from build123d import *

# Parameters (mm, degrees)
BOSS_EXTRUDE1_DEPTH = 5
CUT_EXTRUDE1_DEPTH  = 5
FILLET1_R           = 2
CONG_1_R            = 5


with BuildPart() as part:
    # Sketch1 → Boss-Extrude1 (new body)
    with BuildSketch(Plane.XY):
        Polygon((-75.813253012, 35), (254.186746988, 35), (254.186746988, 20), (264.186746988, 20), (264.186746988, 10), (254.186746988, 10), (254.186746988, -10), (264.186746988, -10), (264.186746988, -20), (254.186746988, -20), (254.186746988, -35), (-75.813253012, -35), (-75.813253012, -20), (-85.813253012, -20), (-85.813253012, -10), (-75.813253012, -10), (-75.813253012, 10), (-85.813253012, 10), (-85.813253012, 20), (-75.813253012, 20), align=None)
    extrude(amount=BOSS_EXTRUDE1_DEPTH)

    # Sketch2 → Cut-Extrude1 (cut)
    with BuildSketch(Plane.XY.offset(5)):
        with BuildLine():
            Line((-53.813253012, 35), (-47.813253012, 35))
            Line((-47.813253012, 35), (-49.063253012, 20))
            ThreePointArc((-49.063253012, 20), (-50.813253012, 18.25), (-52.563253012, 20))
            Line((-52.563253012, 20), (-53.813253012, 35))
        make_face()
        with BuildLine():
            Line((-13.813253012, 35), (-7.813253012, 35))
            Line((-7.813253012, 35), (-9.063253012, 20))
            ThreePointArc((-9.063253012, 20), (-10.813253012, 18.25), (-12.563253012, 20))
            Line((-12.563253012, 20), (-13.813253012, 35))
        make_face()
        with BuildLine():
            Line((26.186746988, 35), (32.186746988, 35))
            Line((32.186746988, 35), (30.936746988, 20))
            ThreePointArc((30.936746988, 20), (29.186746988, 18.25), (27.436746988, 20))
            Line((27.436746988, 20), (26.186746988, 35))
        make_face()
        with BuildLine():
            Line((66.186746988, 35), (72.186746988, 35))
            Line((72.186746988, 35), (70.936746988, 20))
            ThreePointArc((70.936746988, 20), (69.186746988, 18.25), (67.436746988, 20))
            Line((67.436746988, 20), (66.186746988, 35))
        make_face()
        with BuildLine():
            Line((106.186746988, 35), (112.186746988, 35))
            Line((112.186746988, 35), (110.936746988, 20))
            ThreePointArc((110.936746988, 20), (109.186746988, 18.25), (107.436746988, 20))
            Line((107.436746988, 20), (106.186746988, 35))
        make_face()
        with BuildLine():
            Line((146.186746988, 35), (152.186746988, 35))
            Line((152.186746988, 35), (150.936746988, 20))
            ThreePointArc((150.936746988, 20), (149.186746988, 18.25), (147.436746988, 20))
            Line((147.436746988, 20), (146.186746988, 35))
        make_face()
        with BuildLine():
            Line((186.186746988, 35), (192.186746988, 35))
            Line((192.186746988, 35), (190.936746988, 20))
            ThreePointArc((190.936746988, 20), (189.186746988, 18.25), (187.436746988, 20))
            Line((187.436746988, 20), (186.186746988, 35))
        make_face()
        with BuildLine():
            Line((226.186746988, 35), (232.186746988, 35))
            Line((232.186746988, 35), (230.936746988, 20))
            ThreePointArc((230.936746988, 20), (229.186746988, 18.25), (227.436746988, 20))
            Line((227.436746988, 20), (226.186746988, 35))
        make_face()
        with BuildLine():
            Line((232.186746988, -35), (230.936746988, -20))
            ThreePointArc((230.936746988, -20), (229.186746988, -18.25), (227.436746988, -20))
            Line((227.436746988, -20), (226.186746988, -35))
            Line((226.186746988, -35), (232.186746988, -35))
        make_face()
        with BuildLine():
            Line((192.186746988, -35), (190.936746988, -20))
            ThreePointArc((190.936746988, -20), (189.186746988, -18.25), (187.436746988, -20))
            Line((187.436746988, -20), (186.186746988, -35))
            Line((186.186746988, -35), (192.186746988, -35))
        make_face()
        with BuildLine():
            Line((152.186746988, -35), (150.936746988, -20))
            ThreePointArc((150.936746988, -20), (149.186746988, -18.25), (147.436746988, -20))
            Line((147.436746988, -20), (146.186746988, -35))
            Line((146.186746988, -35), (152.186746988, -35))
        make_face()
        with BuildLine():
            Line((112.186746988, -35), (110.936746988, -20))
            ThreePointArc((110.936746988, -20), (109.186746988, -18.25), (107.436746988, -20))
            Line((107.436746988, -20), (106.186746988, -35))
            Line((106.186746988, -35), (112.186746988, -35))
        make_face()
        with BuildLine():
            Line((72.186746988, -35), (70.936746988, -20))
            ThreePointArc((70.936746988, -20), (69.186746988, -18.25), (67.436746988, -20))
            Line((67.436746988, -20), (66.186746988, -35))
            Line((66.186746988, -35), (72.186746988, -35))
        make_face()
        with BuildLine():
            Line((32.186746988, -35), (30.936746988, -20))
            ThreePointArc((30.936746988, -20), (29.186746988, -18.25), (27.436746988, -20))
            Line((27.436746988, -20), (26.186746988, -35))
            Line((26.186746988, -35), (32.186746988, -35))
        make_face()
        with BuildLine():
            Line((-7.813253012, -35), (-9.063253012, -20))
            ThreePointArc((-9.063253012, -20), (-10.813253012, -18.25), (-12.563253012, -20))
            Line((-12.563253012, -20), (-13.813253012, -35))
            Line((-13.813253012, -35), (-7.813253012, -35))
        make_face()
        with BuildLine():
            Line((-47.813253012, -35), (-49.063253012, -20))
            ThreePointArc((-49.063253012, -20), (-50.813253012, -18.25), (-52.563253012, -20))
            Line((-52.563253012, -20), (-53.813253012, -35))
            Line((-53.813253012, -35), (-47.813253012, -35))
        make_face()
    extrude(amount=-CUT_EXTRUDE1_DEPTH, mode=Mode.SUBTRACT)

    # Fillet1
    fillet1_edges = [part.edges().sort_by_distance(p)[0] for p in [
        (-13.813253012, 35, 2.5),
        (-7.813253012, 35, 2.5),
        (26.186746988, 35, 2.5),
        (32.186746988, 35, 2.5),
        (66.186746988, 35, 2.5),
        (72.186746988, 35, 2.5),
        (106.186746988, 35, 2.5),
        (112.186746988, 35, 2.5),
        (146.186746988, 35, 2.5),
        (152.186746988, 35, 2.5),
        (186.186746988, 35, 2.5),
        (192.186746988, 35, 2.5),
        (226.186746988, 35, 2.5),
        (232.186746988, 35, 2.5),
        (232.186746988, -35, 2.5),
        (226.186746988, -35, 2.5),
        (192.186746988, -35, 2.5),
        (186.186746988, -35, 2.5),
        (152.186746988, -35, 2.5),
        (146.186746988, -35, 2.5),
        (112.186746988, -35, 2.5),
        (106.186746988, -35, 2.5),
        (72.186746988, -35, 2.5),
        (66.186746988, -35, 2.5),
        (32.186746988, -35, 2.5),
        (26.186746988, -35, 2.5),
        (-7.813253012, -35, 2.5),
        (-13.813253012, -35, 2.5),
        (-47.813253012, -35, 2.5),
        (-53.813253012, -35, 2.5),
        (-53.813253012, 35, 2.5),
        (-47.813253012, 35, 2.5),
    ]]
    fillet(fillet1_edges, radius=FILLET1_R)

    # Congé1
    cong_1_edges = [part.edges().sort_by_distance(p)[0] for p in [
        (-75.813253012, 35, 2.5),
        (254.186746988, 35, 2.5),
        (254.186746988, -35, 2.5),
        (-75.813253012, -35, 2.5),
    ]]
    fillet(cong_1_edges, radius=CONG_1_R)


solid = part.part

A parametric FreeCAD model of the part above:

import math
import FreeCAD as App
import Part
import Sketcher

V = App.Vector


def edges_at(feature, points):
    """Names of the edges that pass closest to the given points."""
    edges = feature.Shape.Edges
    near = lambda p: min(range(len(edges)), key=lambda i: edges[i].distToShape(Part.Vertex(*p))[0])
    return sorted({f"Edge{near(p) + 1}" for p in points})


def add_polygon(sketch, points):
    """Adds a closed chain of lines whose ends are joined by coincident constraints."""
    first, n = sketch.GeometryCount, len(points)
    for a, b in zip(points, points[1:] + points[:1]):
        sketch.addGeometry(Part.LineSegment(App.Vector(*a, 0), App.Vector(*b, 0)), False)
    for i in range(n):
        sketch.addConstraint(Sketcher.Constraint("Coincident", first + i, 2, first + (i + 1) % n, 1))

doc = App.newDocument("Part")
body = doc.addObject("PartDesign::Body", "Body")

# Sketch on XY plane
sketch1 = body.newObject("Sketcher::SketchObject", "Sketch")
sketch1.AttachmentSupport = (doc.getObject("XY_Plane"), [""])
sketch1.MapMode = "FlatFace"
add_polygon(sketch1, [(254.186747, 35), (-75.813253, 35), (-75.813253, 20), (-85.813253, 20), (-85.813253, 10), (-75.813253, 10), (-75.813253, -10), (-85.813253, -10), (-85.813253, -20), (-75.813253, -20), (-75.813253, -35), (254.186747, -35), (254.186747, -20), (264.186747, -20), (264.186747, -10), (254.186747, -10), (254.186747, 10), (264.186747, 10), (264.186747, 20), (254.186747, 20)])  # lines 0-19
sketch1.addConstraint(Sketcher.Constraint("Horizontal", 0))
sketch1.addConstraint(Sketcher.Constraint("Vertical", 1))
sketch1.addConstraint(Sketcher.Constraint("Horizontal", 2))
sketch1.addConstraint(Sketcher.Constraint("Vertical", 3))
sketch1.addConstraint(Sketcher.Constraint("Horizontal", 4))
sketch1.addConstraint(Sketcher.Constraint("Vertical", 5))
sketch1.addConstraint(Sketcher.Constraint("Horizontal", 6))
sketch1.addConstraint(Sketcher.Constraint("Vertical", 7))
sketch1.addConstraint(Sketcher.Constraint("Horizontal", 8))
sketch1.addConstraint(Sketcher.Constraint("Vertical", 9))
sketch1.addConstraint(Sketcher.Constraint("Horizontal", 10))
sketch1.addConstraint(Sketcher.Constraint("Vertical", 11))
sketch1.addConstraint(Sketcher.Constraint("Horizontal", 12))
sketch1.addConstraint(Sketcher.Constraint("Vertical", 13))
sketch1.addConstraint(Sketcher.Constraint("Horizontal", 14))
sketch1.addConstraint(Sketcher.Constraint("Vertical", 15))
sketch1.addConstraint(Sketcher.Constraint("Horizontal", 16))
sketch1.addConstraint(Sketcher.Constraint("Vertical", 17))
sketch1.addConstraint(Sketcher.Constraint("Horizontal", 18))
sketch1.addConstraint(Sketcher.Constraint("Vertical", 19))
sketch1.addConstraint(Sketcher.Constraint("Symmetric", 3, 2, 6, 2, -1))
sketch1.addConstraint(Sketcher.Constraint("Symmetric", 1, 2, 8, 2, -1))
sketch1.addConstraint(Sketcher.Constraint("Symmetric", 13, 2, 16, 2, -1))
sketch1.addConstraint(Sketcher.Constraint("Symmetric", 11, 2, 18, 2, -1))
sketch1.addConstraint(Sketcher.Constraint("Horizontal", 8, 2, 11, 2))
sketch1.addConstraint(Sketcher.Constraint("Horizontal", 6, 2, 13, 2))
sketch1.addConstraint(Sketcher.Constraint("Vertical", 1, 2, 4, 2))
sketch1.addConstraint(Sketcher.Constraint("Vertical", 11, 2, 14, 2))
sketch1.addConstraint(Sketcher.Constraint("Equal", 8, 12))
sketch1.addConstraint(Sketcher.Constraint("Equal", 18, 3))
sketch1.addConstraint(Sketcher.Constraint("Equal", 1, 9))
sketch1.addConstraint(Sketcher.Constraint("DistanceX", 0, 2, 0, 1, 330.0))
sketch1.addConstraint(Sketcher.Constraint("DistanceX", 2, 2, 2, 1, 10.0))
sketch1.addConstraint(Sketcher.Constraint("DistanceY", 1, 2, 1, 1, 15.0))
sketch1.addConstraint(Sketcher.Constraint("DistanceY", 5, 2, 5, 1, 20.0))
sketch1.addConstraint(Sketcher.Constraint("DistanceX", 0, 2, -1, 1, 75.813253))
pad1 = body.newObject("PartDesign::Pad", "Pad")
pad1.Profile = sketch1
pad1.Length = 5

# Sketch on XY plane
sketch2 = body.newObject("Sketcher::SketchObject", "Sketch001")
sketch2.AttachmentSupport = (doc.getObject("XY_Plane"), [""])
sketch2.MapMode = "FlatFace"
sketch2.AttachmentOffset = App.Placement(V(0, 0, 5), App.Rotation())
sketch2.addGeometry(Part.LineSegment(V(-47.813253, 35, 0), V(-53.813253, 35, 0)), False)
sketch2.addGeometry(Part.LineSegment(V(-53.813253, 35, 0), V(-52.563253, 20, 0)), False)
sketch2.addGeometry(Part.ArcOfCircle(Part.Circle(V(-50.813253, 20, 0), V(0, 0, 1), 1.75), math.radians(180), math.radians(360)), False)
sketch2.addGeometry(Part.LineSegment(V(-49.063253, 20, 0), V(-47.813253, 35, 0)), False)
sketch2.addGeometry(Part.LineSegment(V(-7.813253, 35, 0), V(-13.813253, 35, 0)), False)
sketch2.addGeometry(Part.LineSegment(V(-13.813253, 35, 0), V(-12.563253, 20, 0)), False)
sketch2.addGeometry(Part.ArcOfCircle(Part.Circle(V(-10.813253, 20, 0), V(0, 0, 1), 1.75), math.radians(180), math.radians(360)), False)
sketch2.addGeometry(Part.LineSegment(V(-9.063253, 20, 0), V(-7.813253, 35, 0)), False)
sketch2.addGeometry(Part.LineSegment(V(32.186747, 35, 0), V(26.186747, 35, 0)), False)
sketch2.addGeometry(Part.LineSegment(V(26.186747, 35, 0), V(27.436747, 20, 0)), False)
sketch2.addGeometry(Part.ArcOfCircle(Part.Circle(V(29.186747, 20, 0), V(0, 0, 1), 1.75), math.radians(180), math.radians(360)), False)
sketch2.addGeometry(Part.LineSegment(V(30.936747, 20, 0), V(32.186747, 35, 0)), False)
sketch2.addGeometry(Part.LineSegment(V(72.186747, 35, 0), V(66.186747, 35, 0)), False)
sketch2.addGeometry(Part.LineSegment(V(66.186747, 35, 0), V(67.436747, 20, 0)), False)
sketch2.addGeometry(Part.ArcOfCircle(Part.Circle(V(69.186747, 20, 0), V(0, 0, 1), 1.75), math.radians(180), math.radians(360)), False)
sketch2.addGeometry(Part.LineSegment(V(70.936747, 20, 0), V(72.186747, 35, 0)), False)
sketch2.addGeometry(Part.LineSegment(V(112.186747, 35, 0), V(106.186747, 35, 0)), False)
sketch2.addGeometry(Part.LineSegment(V(106.186747, 35, 0), V(107.436747, 20, 0)), False)
sketch2.addGeometry(Part.ArcOfCircle(Part.Circle(V(109.186747, 20, 0), V(0, 0, 1), 1.75), math.radians(180), math.radians(360)), False)
sketch2.addGeometry(Part.LineSegment(V(110.936747, 20, 0), V(112.186747, 35, 0)), False)
sketch2.addGeometry(Part.LineSegment(V(152.186747, 35, 0), V(146.186747, 35, 0)), False)
sketch2.addGeometry(Part.LineSegment(V(146.186747, 35, 0), V(147.436747, 20, 0)), False)
sketch2.addGeometry(Part.ArcOfCircle(Part.Circle(V(149.186747, 20, 0), V(0, 0, 1), 1.75), math.radians(180), math.radians(360)), False)
sketch2.addGeometry(Part.LineSegment(V(150.936747, 20, 0), V(152.186747, 35, 0)), False)
sketch2.addGeometry(Part.LineSegment(V(192.186747, 35, 0), V(186.186747, 35, 0)), False)
sketch2.addGeometry(Part.LineSegment(V(186.186747, 35, 0), V(187.436747, 20, 0)), False)
sketch2.addGeometry(Part.ArcOfCircle(Part.Circle(V(189.186747, 20, 0), V(0, 0, 1), 1.75), math.radians(180), math.radians(360)), False)
sketch2.addGeometry(Part.LineSegment(V(190.936747, 20, 0), V(192.186747, 35, 0)), False)
sketch2.addGeometry(Part.LineSegment(V(232.186747, 35, 0), V(226.186747, 35, 0)), False)
sketch2.addGeometry(Part.LineSegment(V(226.186747, 35, 0), V(227.436747, 20, 0)), False)
sketch2.addGeometry(Part.ArcOfCircle(Part.Circle(V(229.186747, 20, 0), V(0, 0, 1), 1.75), math.radians(180), math.radians(360)), False)
sketch2.addGeometry(Part.LineSegment(V(230.936747, 20, 0), V(232.186747, 35, 0)), False)
sketch2.addGeometry(Part.LineSegment(V(232.186747, -35, 0), V(230.936747, -20, 0)), False)
sketch2.addGeometry(Part.ArcOfCircle(Part.Circle(V(229.186747, -20, 0), V(0, 0, 1), 1.75), math.radians(0), math.radians(180)), False)
sketch2.addGeometry(Part.LineSegment(V(227.436747, -20, 0), V(226.186747, -35, 0)), False)
sketch2.addGeometry(Part.LineSegment(V(226.186747, -35, 0), V(232.186747, -35, 0)), False)
sketch2.addGeometry(Part.LineSegment(V(192.186747, -35, 0), V(190.936747, -20, 0)), False)
sketch2.addGeometry(Part.ArcOfCircle(Part.Circle(V(189.186747, -20, 0), V(0, 0, 1), 1.75), math.radians(0), math.radians(180)), False)
sketch2.addGeometry(Part.LineSegment(V(187.436747, -20, 0), V(186.186747, -35, 0)), False)
sketch2.addGeometry(Part.LineSegment(V(186.186747, -35, 0), V(192.186747, -35, 0)), False)
sketch2.addGeometry(Part.LineSegment(V(152.186747, -35, 0), V(150.936747, -20, 0)), False)
sketch2.addGeometry(Part.ArcOfCircle(Part.Circle(V(149.186747, -20, 0), V(0, 0, 1), 1.75), math.radians(0), math.radians(180)), False)
sketch2.addGeometry(Part.LineSegment(V(147.436747, -20, 0), V(146.186747, -35, 0)), False)
sketch2.addGeometry(Part.LineSegment(V(146.186747, -35, 0), V(152.186747, -35, 0)), False)
sketch2.addGeometry(Part.LineSegment(V(112.186747, -35, 0), V(110.936747, -20, 0)), False)
sketch2.addGeometry(Part.ArcOfCircle(Part.Circle(V(109.186747, -20, 0), V(0, 0, 1), 1.75), math.radians(0), math.radians(180)), False)
sketch2.addGeometry(Part.LineSegment(V(107.436747, -20, 0), V(106.186747, -35, 0)), False)
sketch2.addGeometry(Part.LineSegment(V(106.186747, -35, 0), V(112.186747, -35, 0)), False)
sketch2.addGeometry(Part.LineSegment(V(72.186747, -35, 0), V(70.936747, -20, 0)), False)
sketch2.addGeometry(Part.ArcOfCircle(Part.Circle(V(69.186747, -20, 0), V(0, 0, 1), 1.75), math.radians(0), math.radians(180)), False)
sketch2.addGeometry(Part.LineSegment(V(67.436747, -20, 0), V(66.186747, -35, 0)), False)
sketch2.addGeometry(Part.LineSegment(V(66.186747, -35, 0), V(72.186747, -35, 0)), False)
sketch2.addGeometry(Part.LineSegment(V(32.186747, -35, 0), V(30.936747, -20, 0)), False)
sketch2.addGeometry(Part.ArcOfCircle(Part.Circle(V(29.186747, -20, 0), V(0, 0, 1), 1.75), math.radians(0), math.radians(180)), False)
sketch2.addGeometry(Part.LineSegment(V(27.436747, -20, 0), V(26.186747, -35, 0)), False)
sketch2.addGeometry(Part.LineSegment(V(26.186747, -35, 0), V(32.186747, -35, 0)), False)
sketch2.addGeometry(Part.LineSegment(V(-7.813253, -35, 0), V(-9.063253, -20, 0)), False)
sketch2.addGeometry(Part.ArcOfCircle(Part.Circle(V(-10.813253, -20, 0), V(0, 0, 1), 1.75), math.radians(0), math.radians(180)), False)
sketch2.addGeometry(Part.LineSegment(V(-12.563253, -20, 0), V(-13.813253, -35, 0)), False)
sketch2.addGeometry(Part.LineSegment(V(-13.813253, -35, 0), V(-7.813253, -35, 0)), False)
sketch2.addGeometry(Part.LineSegment(V(-47.813253, -35, 0), V(-49.063253, -20, 0)), False)
sketch2.addGeometry(Part.ArcOfCircle(Part.Circle(V(-50.813253, -20, 0), V(0, 0, 1), 1.75), math.radians(0), math.radians(180)), False)
sketch2.addGeometry(Part.LineSegment(V(-52.563253, -20, 0), V(-53.813253, -35, 0)), False)
sketch2.addGeometry(Part.LineSegment(V(-53.813253, -35, 0), V(-47.813253, -35, 0)), False)
sketch2.addConstraint(Sketcher.Constraint("Coincident", 0, 2, 1, 1))
sketch2.addConstraint(Sketcher.Constraint("Coincident", 1, 2, 2, 1))
sketch2.addConstraint(Sketcher.Constraint("Coincident", 2, 2, 3, 1))
sketch2.addConstraint(Sketcher.Constraint("Coincident", 3, 2, 0, 1))
sketch2.addConstraint(Sketcher.Constraint("Coincident", 4, 2, 5, 1))
sketch2.addConstraint(Sketcher.Constraint("Coincident", 5, 2, 6, 1))
sketch2.addConstraint(Sketcher.Constraint("Coincident", 6, 2, 7, 1))
sketch2.addConstraint(Sketcher.Constraint("Coincident", 7, 2, 4, 1))
sketch2.addConstraint(Sketcher.Constraint("Coincident", 8, 2, 9, 1))
sketch2.addConstraint(Sketcher.Constraint("Coincident", 9, 2, 10, 1))
sketch2.addConstraint(Sketcher.Constraint("Coincident", 10, 2, 11, 1))
sketch2.addConstraint(Sketcher.Constraint("Coincident", 11, 2, 8, 1))
sketch2.addConstraint(Sketcher.Constraint("Coincident", 12, 2, 13, 1))
sketch2.addConstraint(Sketcher.Constraint("Coincident", 13, 2, 14, 1))
sketch2.addConstraint(Sketcher.Constraint("Coincident", 14, 2, 15, 1))
sketch2.addConstraint(Sketcher.Constraint("Coincident", 15, 2, 12, 1))
sketch2.addConstraint(Sketcher.Constraint("Coincident", 16, 2, 17, 1))
sketch2.addConstraint(Sketcher.Constraint("Coincident", 17, 2, 18, 1))
sketch2.addConstraint(Sketcher.Constraint("Coincident", 18, 2, 19, 1))
sketch2.addConstraint(Sketcher.Constraint("Coincident", 19, 2, 16, 1))
sketch2.addConstraint(Sketcher.Constraint("Coincident", 20, 2, 21, 1))
sketch2.addConstraint(Sketcher.Constraint("Coincident", 21, 2, 22, 1))
sketch2.addConstraint(Sketcher.Constraint("Coincident", 22, 2, 23, 1))
sketch2.addConstraint(Sketcher.Constraint("Coincident", 23, 2, 20, 1))
sketch2.addConstraint(Sketcher.Constraint("Coincident", 24, 2, 25, 1))
sketch2.addConstraint(Sketcher.Constraint("Coincident", 25, 2, 26, 1))
sketch2.addConstraint(Sketcher.Constraint("Coincident", 26, 2, 27, 1))
sketch2.addConstraint(Sketcher.Constraint("Coincident", 27, 2, 24, 1))
sketch2.addConstraint(Sketcher.Constraint("Coincident", 28, 2, 29, 1))
sketch2.addConstraint(Sketcher.Constraint("Coincident", 29, 2, 30, 1))
sketch2.addConstraint(Sketcher.Constraint("Coincident", 30, 2, 31, 1))
sketch2.addConstraint(Sketcher.Constraint("Coincident", 31, 2, 28, 1))
sketch2.addConstraint(Sketcher.Constraint("Coincident", 32, 2, 33, 1))
sketch2.addConstraint(Sketcher.Constraint("Coincident", 33, 2, 34, 1))
sketch2.addConstraint(Sketcher.Constraint("Coincident", 34, 2, 35, 1))
sketch2.addConstraint(Sketcher.Constraint("Coincident", 35, 2, 32, 1))
sketch2.addConstraint(Sketcher.Constraint("Coincident", 36, 2, 37, 1))
sketch2.addConstraint(Sketcher.Constraint("Coincident", 37, 2, 38, 1))
sketch2.addConstraint(Sketcher.Constraint("Coincident", 38, 2, 39, 1))
sketch2.addConstraint(Sketcher.Constraint("Coincident", 39, 2, 36, 1))
sketch2.addConstraint(Sketcher.Constraint("Coincident", 40, 2, 41, 1))
sketch2.addConstraint(Sketcher.Constraint("Coincident", 41, 2, 42, 1))
sketch2.addConstraint(Sketcher.Constraint("Coincident", 42, 2, 43, 1))
sketch2.addConstraint(Sketcher.Constraint("Coincident", 43, 2, 40, 1))
sketch2.addConstraint(Sketcher.Constraint("Coincident", 44, 2, 45, 1))
sketch2.addConstraint(Sketcher.Constraint("Coincident", 45, 2, 46, 1))
sketch2.addConstraint(Sketcher.Constraint("Coincident", 46, 2, 47, 1))
sketch2.addConstraint(Sketcher.Constraint("Coincident", 47, 2, 44, 1))
sketch2.addConstraint(Sketcher.Constraint("Coincident", 48, 2, 49, 1))
sketch2.addConstraint(Sketcher.Constraint("Coincident", 49, 2, 50, 1))
sketch2.addConstraint(Sketcher.Constraint("Coincident", 50, 2, 51, 1))
sketch2.addConstraint(Sketcher.Constraint("Coincident", 51, 2, 48, 1))
sketch2.addConstraint(Sketcher.Constraint("Coincident", 52, 2, 53, 1))
sketch2.addConstraint(Sketcher.Constraint("Coincident", 53, 2, 54, 1))
sketch2.addConstraint(Sketcher.Constraint("Coincident", 54, 2, 55, 1))
sketch2.addConstraint(Sketcher.Constraint("Coincident", 55, 2, 52, 1))
sketch2.addConstraint(Sketcher.Constraint("Coincident", 56, 2, 57, 1))
sketch2.addConstraint(Sketcher.Constraint("Coincident", 57, 2, 58, 1))
sketch2.addConstraint(Sketcher.Constraint("Coincident", 58, 2, 59, 1))
sketch2.addConstraint(Sketcher.Constraint("Coincident", 59, 2, 56, 1))
sketch2.addConstraint(Sketcher.Constraint("Coincident", 60, 2, 61, 1))
sketch2.addConstraint(Sketcher.Constraint("Coincident", 61, 2, 62, 1))
sketch2.addConstraint(Sketcher.Constraint("Coincident", 62, 2, 63, 1))
sketch2.addConstraint(Sketcher.Constraint("Coincident", 63, 2, 60, 1))
sketch2.addConstraint(Sketcher.Constraint("Horizontal", 0))
sketch2.addConstraint(Sketcher.Constraint("Horizontal", 4))
sketch2.addConstraint(Sketcher.Constraint("Horizontal", 8))
sketch2.addConstraint(Sketcher.Constraint("Horizontal", 12))
sketch2.addConstraint(Sketcher.Constraint("Horizontal", 16))
sketch2.addConstraint(Sketcher.Constraint("Horizontal", 20))
sketch2.addConstraint(Sketcher.Constraint("Horizontal", 24))
sketch2.addConstraint(Sketcher.Constraint("Horizontal", 28))
sketch2.addConstraint(Sketcher.Constraint("Horizontal", 35))
sketch2.addConstraint(Sketcher.Constraint("Horizontal", 39))
sketch2.addConstraint(Sketcher.Constraint("Horizontal", 43))
sketch2.addConstraint(Sketcher.Constraint("Horizontal", 47))
sketch2.addConstraint(Sketcher.Constraint("Horizontal", 51))
sketch2.addConstraint(Sketcher.Constraint("Horizontal", 55))
sketch2.addConstraint(Sketcher.Constraint("Horizontal", 59))
sketch2.addConstraint(Sketcher.Constraint("Horizontal", 63))
sketch2.addConstraint(Sketcher.Constraint("Equal", 2, 6))
sketch2.addConstraint(Sketcher.Constraint("Equal", 6, 10))
sketch2.addConstraint(Sketcher.Constraint("Equal", 10, 14))
sketch2.addConstraint(Sketcher.Constraint("Equal", 14, 18))
sketch2.addConstraint(Sketcher.Constraint("Equal", 18, 22))
sketch2.addConstraint(Sketcher.Constraint("Equal", 22, 26))
sketch2.addConstraint(Sketcher.Constraint("Equal", 26, 30))
sketch2.addConstraint(Sketcher.Constraint("Equal", 30, 33))
sketch2.addConstraint(Sketcher.Constraint("Equal", 33, 37))
sketch2.addConstraint(Sketcher.Constraint("Equal", 37, 41))
sketch2.addConstraint(Sketcher.Constraint("Equal", 41, 45))
sketch2.addConstraint(Sketcher.Constraint("Equal", 45, 49))
sketch2.addConstraint(Sketcher.Constraint("Equal", 49, 53))
sketch2.addConstraint(Sketcher.Constraint("Equal", 53, 57))
sketch2.addConstraint(Sketcher.Constraint("Equal", 57, 61))
sketch2.addConstraint(Sketcher.Constraint("Symmetric", 30, 3, 33, 3, -1))
sketch2.addConstraint(Sketcher.Constraint("Symmetric", 26, 3, 37, 3, -1))
sketch2.addConstraint(Sketcher.Constraint("Symmetric", 22, 3, 41, 3, -1))
sketch2.addConstraint(Sketcher.Constraint("Symmetric", 18, 3, 45, 3, -1))
sketch2.addConstraint(Sketcher.Constraint("Symmetric", 14, 3, 49, 3, -1))
sketch2.addConstraint(Sketcher.Constraint("Symmetric", 10, 3, 53, 3, -1))
sketch2.addConstraint(Sketcher.Constraint("Symmetric", 6, 3, 57, 3, -1))
sketch2.addConstraint(Sketcher.Constraint("Symmetric", 2, 3, 61, 3, -1))
sketch2.addConstraint(Sketcher.Constraint("Symmetric", 28, 2, 34, 2, -1))
sketch2.addConstraint(Sketcher.Constraint("Symmetric", 24, 2, 38, 2, -1))
sketch2.addConstraint(Sketcher.Constraint("Symmetric", 20, 2, 42, 2, -1))
sketch2.addConstraint(Sketcher.Constraint("Symmetric", 16, 2, 46, 2, -1))
sketch2.addConstraint(Sketcher.Constraint("Symmetric", 12, 2, 50, 2, -1))
sketch2.addConstraint(Sketcher.Constraint("Symmetric", 8, 2, 54, 2, -1))
sketch2.addConstraint(Sketcher.Constraint("Symmetric", 4, 2, 58, 2, -1))
sketch2.addConstraint(Sketcher.Constraint("Symmetric", 0, 2, 62, 2, -1))
sketch2.addConstraint(Sketcher.Constraint("Parallel", 1, 5))
sketch2.addConstraint(Sketcher.Constraint("Parallel", 3, 7))
sketch2.addConstraint(Sketcher.Constraint("Parallel", 5, 9))
sketch2.addConstraint(Sketcher.Constraint("Parallel", 7, 11))
sketch2.addConstraint(Sketcher.Constraint("Parallel", 9, 13))
sketch2.addConstraint(Sketcher.Constraint("Parallel", 11, 15))
sketch2.addConstraint(Sketcher.Constraint("Parallel", 13, 17))
sketch2.addConstraint(Sketcher.Constraint("Parallel", 15, 19))
sketch2.addConstraint(Sketcher.Constraint("Parallel", 17, 21))
sketch2.addConstraint(Sketcher.Constraint("Parallel", 19, 23))
sketch2.addConstraint(Sketcher.Constraint("Parallel", 21, 25))
sketch2.addConstraint(Sketcher.Constraint("Parallel", 23, 27))
sketch2.addConstraint(Sketcher.Constraint("Parallel", 25, 29))
sketch2.addConstraint(Sketcher.Constraint("Parallel", 27, 31))
sketch2.addConstraint(Sketcher.Constraint("Parallel", 29, 32))
sketch2.addConstraint(Sketcher.Constraint("Parallel", 31, 34))
sketch2.addConstraint(Sketcher.Constraint("Parallel", 32, 36))
sketch2.addConstraint(Sketcher.Constraint("Parallel", 34, 38))
sketch2.addConstraint(Sketcher.Constraint("Parallel", 36, 40))
sketch2.addConstraint(Sketcher.Constraint("Parallel", 38, 42))
sketch2.addConstraint(Sketcher.Constraint("Parallel", 40, 44))
sketch2.addConstraint(Sketcher.Constraint("Parallel", 42, 46))
sketch2.addConstraint(Sketcher.Constraint("Parallel", 44, 48))
sketch2.addConstraint(Sketcher.Constraint("Parallel", 46, 50))
sketch2.addConstraint(Sketcher.Constraint("Parallel", 48, 52))
sketch2.addConstraint(Sketcher.Constraint("Parallel", 50, 54))
sketch2.addConstraint(Sketcher.Constraint("Parallel", 52, 56))
sketch2.addConstraint(Sketcher.Constraint("Parallel", 54, 58))
sketch2.addConstraint(Sketcher.Constraint("Parallel", 56, 60))
sketch2.addConstraint(Sketcher.Constraint("Parallel", 58, 62))
sketch2.addConstraint(Sketcher.Constraint("Horizontal", 2, 3, 6, 3))
sketch2.addConstraint(Sketcher.Constraint("Horizontal", 6, 3, 10, 3))
sketch2.addConstraint(Sketcher.Constraint("Horizontal", 10, 3, 14, 3))
sketch2.addConstraint(Sketcher.Constraint("Horizontal", 14, 3, 18, 3))
sketch2.addConstraint(Sketcher.Constraint("Horizontal", 18, 3, 22, 3))
sketch2.addConstraint(Sketcher.Constraint("Horizontal", 22, 3, 26, 3))
sketch2.addConstraint(Sketcher.Constraint("Horizontal", 26, 3, 30, 3))
sketch2.addConstraint(Sketcher.Constraint("Horizontal", 30, 3, 1, 2))
sketch2.addConstraint(Sketcher.Constraint("Horizontal", 1, 2, 2, 2))
sketch2.addConstraint(Sketcher.Constraint("Horizontal", 3, 2, 4, 2))
sketch2.addConstraint(Sketcher.Constraint("Horizontal", 2, 2, 5, 2))
sketch2.addConstraint(Sketcher.Constraint("Horizontal", 5, 2, 6, 2))
sketch2.addConstraint(Sketcher.Constraint("Horizontal", 7, 2, 8, 2))
sketch2.addConstraint(Sketcher.Constraint("Horizontal", 6, 2, 9, 2))
sketch2.addConstraint(Sketcher.Constraint("Horizontal", 9, 2, 10, 2))
sketch2.addConstraint(Sketcher.Constraint("Horizontal", 11, 2, 12, 2))
sketch2.addConstraint(Sketcher.Constraint("Horizontal", 10, 2, 13, 2))
sketch2.addConstraint(Sketcher.Constraint("Horizontal", 13, 2, 14, 2))
sketch2.addConstraint(Sketcher.Constraint("Horizontal", 15, 2, 16, 2))
sketch2.addConstraint(Sketcher.Constraint("Horizontal", 14, 2, 17, 2))
sketch2.addConstraint(Sketcher.Constraint("Horizontal", 17, 2, 18, 2))
sketch2.addConstraint(Sketcher.Constraint("Horizontal", 19, 2, 20, 2))
sketch2.addConstraint(Sketcher.Constraint("Horizontal", 18, 2, 21, 2))
sketch2.addConstraint(Sketcher.Constraint("Horizontal", 21, 2, 22, 2))
sketch2.addConstraint(Sketcher.Constraint("Horizontal", 23, 2, 24, 2))
sketch2.addConstraint(Sketcher.Constraint("Horizontal", 22, 2, 25, 2))
sketch2.addConstraint(Sketcher.Constraint("Horizontal", 25, 2, 26, 2))
sketch2.addConstraint(Sketcher.Constraint("Horizontal", 27, 2, 28, 2))
sketch2.addConstraint(Sketcher.Constraint("Horizontal", 26, 2, 29, 2))
sketch2.addConstraint(Sketcher.Constraint("Horizontal", 29, 2, 30, 2))
sketch2.addConstraint(Sketcher.Constraint("Horizontal", 61, 3, 32, 2))
sketch2.addConstraint(Sketcher.Constraint("Horizontal", 32, 2, 33, 2))
sketch2.addConstraint(Sketcher.Constraint("Horizontal", 33, 2, 36, 2))
sketch2.addConstraint(Sketcher.Constraint("Horizontal", 37, 2, 40, 2))
sketch2.addConstraint(Sketcher.Constraint("Horizontal", 41, 2, 44, 2))
sketch2.addConstraint(Sketcher.Constraint("Horizontal", 45, 2, 48, 2))
sketch2.addConstraint(Sketcher.Constraint("Horizontal", 49, 2, 52, 2))
sketch2.addConstraint(Sketcher.Constraint("Horizontal", 53, 2, 56, 2))
sketch2.addConstraint(Sketcher.Constraint("Horizontal", 57, 2, 60, 2))
sketch2.addConstraint(Sketcher.Constraint("DistanceX", 0, 2, 0, 1, 6.0))
sketch2.addConstraint(Sketcher.Constraint("Radius", 2, 1.75))
sketch2.addConstraint(Sketcher.Constraint("DistanceY", -1, 1, 2, 3, 20.0))
sketch2.addConstraint(Sketcher.Constraint("DistanceY", -1, 1, 0, 2, 35.0))
sketch2.addConstraint(Sketcher.Constraint("DistanceX", 2, 3, -1, 1, 50.813253))
sketch2.addConstraint(Sketcher.Constraint("DistanceX", 6, 3, -1, 1, 10.813253))
sketch2.addConstraint(Sketcher.Constraint("DistanceX", -1, 1, 10, 3, 29.186747))
sketch2.addConstraint(Sketcher.Constraint("DistanceX", -1, 1, 14, 3, 69.186747))
sketch2.addConstraint(Sketcher.Constraint("DistanceX", -1, 1, 18, 3, 109.186747))
sketch2.addConstraint(Sketcher.Constraint("DistanceX", -1, 1, 22, 3, 149.186747))
sketch2.addConstraint(Sketcher.Constraint("DistanceX", -1, 1, 26, 3, 189.186747))
sketch2.addConstraint(Sketcher.Constraint("DistanceX", -1, 1, 30, 3, 229.186747))
pocket1 = body.newObject("PartDesign::Pocket", "Pocket")
pocket1.Profile = sketch2
pocket1.Length = 5
doc.recompute()

fillet = body.newObject("PartDesign::Fillet", "Fillet")
fillet.Base = (pocket1, edges_at(pocket1, [
    (-13.813, 35, 2.5),
    (-7.813, 35, 2.5),
    (26.187, 35, 2.5),
    (32.187, 35, 2.5),
    (66.187, 35, 2.5),
    (72.187, 35, 2.5),
    (106.187, 35, 2.5),
    (112.187, 35, 2.5),
    (146.187, 35, 2.5),
    (152.187, 35, 2.5),
    (186.187, 35, 2.5),
    (192.187, 35, 2.5),
    (226.187, 35, 2.5),
    (232.187, 35, 2.5),
    (232.187, -35, 2.5),
    (226.187, -35, 2.5),
    (192.187, -35, 2.5),
    (186.187, -35, 2.5),
    (152.187, -35, 2.5),
    (146.187, -35, 2.5),
    (112.187, -35, 2.5),
    (106.187, -35, 2.5),
    (72.187, -35, 2.5),
    (66.187, -35, 2.5),
    (32.187, -35, 2.5),
    (26.187, -35, 2.5),
    (-7.813, -35, 2.5),
    (-13.813, -35, 2.5),
    (-47.813, -35, 2.5),
    (-53.813, -35, 2.5),
    (-53.813, 35, 2.5),
    (-47.813, 35, 2.5),
]))
fillet.Radius = 2
doc.recompute()

fillet2 = body.newObject("PartDesign::Fillet", "Fillet001")
fillet2.Base = (fillet, edges_at(fillet, [
    (-75.813, 35, 2.5),
    (254.187, 35, 2.5),
    (254.187, -35, 2.5),
    (-75.813, -35, 2.5),
]))
fillet2.Radius = 5

doc.recompute()
